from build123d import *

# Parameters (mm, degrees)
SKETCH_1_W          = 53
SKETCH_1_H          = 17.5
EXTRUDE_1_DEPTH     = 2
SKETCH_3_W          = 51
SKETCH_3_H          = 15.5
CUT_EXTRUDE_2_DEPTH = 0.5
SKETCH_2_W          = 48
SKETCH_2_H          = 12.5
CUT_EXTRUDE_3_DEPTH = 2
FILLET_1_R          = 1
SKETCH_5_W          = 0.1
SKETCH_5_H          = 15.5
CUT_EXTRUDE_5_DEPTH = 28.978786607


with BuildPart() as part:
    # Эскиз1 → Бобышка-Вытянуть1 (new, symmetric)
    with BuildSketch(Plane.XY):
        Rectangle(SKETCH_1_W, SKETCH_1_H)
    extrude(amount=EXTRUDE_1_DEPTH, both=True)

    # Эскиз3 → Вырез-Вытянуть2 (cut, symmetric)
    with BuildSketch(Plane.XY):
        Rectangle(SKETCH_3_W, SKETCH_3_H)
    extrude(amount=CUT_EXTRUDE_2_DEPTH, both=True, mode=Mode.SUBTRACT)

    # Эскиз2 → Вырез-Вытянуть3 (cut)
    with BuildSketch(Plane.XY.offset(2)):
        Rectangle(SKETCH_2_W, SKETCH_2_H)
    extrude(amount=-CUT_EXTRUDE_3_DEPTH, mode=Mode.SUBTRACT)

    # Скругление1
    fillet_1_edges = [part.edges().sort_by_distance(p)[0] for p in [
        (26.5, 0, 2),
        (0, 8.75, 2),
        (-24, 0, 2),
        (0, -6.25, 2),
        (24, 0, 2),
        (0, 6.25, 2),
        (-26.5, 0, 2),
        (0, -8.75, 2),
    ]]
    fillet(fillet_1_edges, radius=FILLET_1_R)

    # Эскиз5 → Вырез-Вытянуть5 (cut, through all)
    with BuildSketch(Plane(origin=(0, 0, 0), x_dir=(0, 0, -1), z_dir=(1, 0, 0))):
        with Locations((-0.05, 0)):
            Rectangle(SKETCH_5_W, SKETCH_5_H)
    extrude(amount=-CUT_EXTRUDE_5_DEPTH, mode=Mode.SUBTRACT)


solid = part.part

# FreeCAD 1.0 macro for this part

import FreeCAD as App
import Part
import Sketcher

V = App.Vector
Q = App.Units.Quantity


def edges_at(feature, points):
    """Names of the edges that pass closest to the given points."""
    edges = feature.Shape.Edges
    near = lambda p: min(range(len(edges)), key=lambda i: edges[i].distToShape(Part.Vertex(*p))[0])
    return sorted({f"Edge{near(p) + 1}" for p in points})

doc = App.newDocument("Part")
body = doc.addObject("PartDesign::Body", "Body")

# Sketch on XY plane
sketch1 = doc.addObject("Sketcher::SketchObject", "Sketch")
body.addObject(sketch1)
sketch1.AttachmentSupport = (doc.XY_Plane, [""])
sketch1.MapMode = "FlatFace"
sketch1.addGeometry([
    Part.LineSegment(V(-26, 9, 0), V(-26, -9, 0)),
    Part.LineSegment(V(-26, -9, 0), V(26, -9, 0)),
    Part.LineSegment(V(26, -9, 0), V(26, 9, 0)),
    Part.LineSegment(V(26, 9, 0), V(-26, 9, 0)),
], False)
sketch1.addConstraint([
    Sketcher.Constraint("Coincident", 0, 2, 1, 1),
    Sketcher.Constraint("Coincident", 1, 2, 2, 1),
    Sketcher.Constraint("Coincident", 2, 2, 3, 1),
    Sketcher.Constraint("Coincident", 3, 2, 0, 1),
    Sketcher.Constraint("Vertical", 0),
    Sketcher.Constraint("Horizontal", 1),
    Sketcher.Constraint("Vertical", 2),
    Sketcher.Constraint("Horizontal", 3),
    Sketcher.Constraint("Symmetric", 0, 2, 2, 2, -1, 1),
    Sketcher.Constraint("DistanceX", 1, 1, 1, 2, Q("53 mm")),
    Sketcher.Constraint("DistanceY", 0, 2, 0, 1, Q("17.5 mm")),
])
pad1 = doc.addObject("PartDesign::Pad", "Pad")
body.addObject(pad1)
pad1.Profile = sketch1
pad1.Length = 4
pad1.Midplane = True

# Sketch on XY plane
sketch2 = doc.addObject("Sketcher::SketchObject", "Sketch001")
body.addObject(sketch2)
sketch2.AttachmentSupport = (doc.XY_Plane, [""])
sketch2.MapMode = "FlatFace"
sketch2.addGeometry([
    Part.LineSegment(V(-26, 8, 0), V(-26, -8, 0)),
    Part.LineSegment(V(-26, -8, 0), V(26, -8, 0)),
    Part.LineSegment(V(26, -8, 0), V(26, 8, 0)),
    Part.LineSegment(V(26, 8, 0), V(-26, 8, 0)),
], False)
sketch2.addConstraint([
    Sketcher.Constraint("Coincident", 0, 2, 1, 1),
    Sketcher.Constraint("Coincident", 1, 2, 2, 1),
    Sketcher.Constraint("Coincident", 2, 2, 3, 1),
    Sketcher.Constraint("Coincident", 3, 2, 0, 1),
    Sketcher.Constraint("Vertical", 0),
    Sketcher.Constraint("Horizontal", 1),
    Sketcher.Constraint("Vertical", 2),
    Sketcher.Constraint("Horizontal", 3),
    Sketcher.Constraint("Symmetric", 0, 2, 2, 2, -1, 1),
    Sketcher.Constraint("DistanceX", 1, 1, 1, 2, Q("51 mm")),
    Sketcher.Constraint("DistanceY", 0, 2, 0, 1, Q("15.5 mm")),
])
pocket1 = doc.addObject("PartDesign::Pocket", "Pocket")
body.addObject(pocket1)
pocket1.Profile = sketch2
pocket1.Length = 1
pocket1.Midplane = True

# Sketch on XY plane
sketch3 = doc.addObject("Sketcher::SketchObject", "Sketch002")
body.addObject(sketch3)
sketch3.AttachmentSupport = (doc.XY_Plane, [""])
sketch3.MapMode = "FlatFace"
sketch3.AttachmentOffset = App.Placement(V(0, 0, 2), App.Rotation())
sketch3.addGeometry([
    Part.LineSegment(V(-24, 6, 0), V(-24, -6, 0)),
    Part.LineSegment(V(-24, -6, 0), V(24, -6, 0)),
    Part.LineSegment(V(24, -6, 0), V(24, 6, 0)),
    Part.LineSegment(V(24, 6, 0), V(-24, 6, 0)),
], False)
sketch3.addConstraint([
    Sketcher.Constraint("Coincident", 0, 2, 1, 1),
    Sketcher.Constraint("Coincident", 1, 2, 2, 1),
    Sketcher.Constraint("Coincident", 2, 2, 3, 1),
    Sketcher.Constraint("Coincident", 3, 2, 0, 1),
    Sketcher.Constraint("Vertical", 0),
    Sketcher.Constraint("Horizontal", 1),
    Sketcher.Constraint("Vertical", 2),
    Sketcher.Constraint("Horizontal", 3),
    Sketcher.Constraint("Symmetric", 0, 2, 2, 2, -1, 1),
    Sketcher.Constraint("DistanceX", 1, 1, 1, 2, Q("48 mm")),
    Sketcher.Constraint("DistanceY", 0, 2, 0, 1, Q("12.5 mm")),
])
pocket2 = doc.addObject("PartDesign::Pocket", "Pocket001")
body.addObject(pocket2)
pocket2.Profile = sketch3
pocket2.Length = 2
doc.recompute()

fillet = doc.addObject("PartDesign::Fillet", "Fillet")
body.addObject(fillet)
fillet.Base = (pocket2, edges_at(pocket2, [
    (26.5, 0, 2),
    (0, 8.75, 2),
    (-24, 0, 2),
    (0, -6.25, 2),
    (24, 0, 2),
    (0, 6.25, 2),
    (-26.5, 0, 2),
    (0, -8.75, 2),
]))
fillet.Radius = 1

# Sketch on YZ plane
sketch4 = doc.addObject("Sketcher::SketchObject", "Sketch003")
body.addObject(sketch4)
sketch4.AttachmentSupport = (doc.YZ_Plane, [""])
sketch4.MapMode = "FlatFace"
sketch4.addGeometry([
    Part.LineSegment(V(7.75, 0.1, 0), V(-7.75, 0.1, 0)),
    Part.LineSegment(V(-7.75, 0.1, 0), V(-7.75, 0, 0)),
    Part.LineSegment(V(-7.75, 0, 0), V(7.75, 0, 0)),
    Part.LineSegment(V(7.75, 0, 0), V(7.75, 0.1, 0)),
], False)
sketch4.addConstraint([
    Sketcher.Constraint("Coincident", 0, 2, 1, 1),
    Sketcher.Constraint("Coincident", 1, 2, 2, 1),
    Sketcher.Constraint("Coincident", 2, 2, 3, 1),
    Sketcher.Constraint("Coincident", 3, 2, 0, 1),
    Sketcher.Constraint("Horizontal", 0),
    Sketcher.Constraint("Vertical", 1),
    Sketcher.Constraint("Horizontal", 2),
    Sketcher.Constraint("Vertical", 3),
    Sketcher.Constraint("Symmetric", 1, 2, 2, 2, -1, 1),
    Sketcher.Constraint("DistanceX", 0, 2, 0, 1, Q("15.5 mm")),
    Sketcher.Constraint("DistanceY", 1, 2, 1, 1, Q("0.1 mm")),
])
pocket3 = doc.addObject("PartDesign::Pocket", "Pocket002")
body.addObject(pocket3)
pocket3.Profile = sketch4
pocket3.Type = "ThroughAll"

doc.recompute()
